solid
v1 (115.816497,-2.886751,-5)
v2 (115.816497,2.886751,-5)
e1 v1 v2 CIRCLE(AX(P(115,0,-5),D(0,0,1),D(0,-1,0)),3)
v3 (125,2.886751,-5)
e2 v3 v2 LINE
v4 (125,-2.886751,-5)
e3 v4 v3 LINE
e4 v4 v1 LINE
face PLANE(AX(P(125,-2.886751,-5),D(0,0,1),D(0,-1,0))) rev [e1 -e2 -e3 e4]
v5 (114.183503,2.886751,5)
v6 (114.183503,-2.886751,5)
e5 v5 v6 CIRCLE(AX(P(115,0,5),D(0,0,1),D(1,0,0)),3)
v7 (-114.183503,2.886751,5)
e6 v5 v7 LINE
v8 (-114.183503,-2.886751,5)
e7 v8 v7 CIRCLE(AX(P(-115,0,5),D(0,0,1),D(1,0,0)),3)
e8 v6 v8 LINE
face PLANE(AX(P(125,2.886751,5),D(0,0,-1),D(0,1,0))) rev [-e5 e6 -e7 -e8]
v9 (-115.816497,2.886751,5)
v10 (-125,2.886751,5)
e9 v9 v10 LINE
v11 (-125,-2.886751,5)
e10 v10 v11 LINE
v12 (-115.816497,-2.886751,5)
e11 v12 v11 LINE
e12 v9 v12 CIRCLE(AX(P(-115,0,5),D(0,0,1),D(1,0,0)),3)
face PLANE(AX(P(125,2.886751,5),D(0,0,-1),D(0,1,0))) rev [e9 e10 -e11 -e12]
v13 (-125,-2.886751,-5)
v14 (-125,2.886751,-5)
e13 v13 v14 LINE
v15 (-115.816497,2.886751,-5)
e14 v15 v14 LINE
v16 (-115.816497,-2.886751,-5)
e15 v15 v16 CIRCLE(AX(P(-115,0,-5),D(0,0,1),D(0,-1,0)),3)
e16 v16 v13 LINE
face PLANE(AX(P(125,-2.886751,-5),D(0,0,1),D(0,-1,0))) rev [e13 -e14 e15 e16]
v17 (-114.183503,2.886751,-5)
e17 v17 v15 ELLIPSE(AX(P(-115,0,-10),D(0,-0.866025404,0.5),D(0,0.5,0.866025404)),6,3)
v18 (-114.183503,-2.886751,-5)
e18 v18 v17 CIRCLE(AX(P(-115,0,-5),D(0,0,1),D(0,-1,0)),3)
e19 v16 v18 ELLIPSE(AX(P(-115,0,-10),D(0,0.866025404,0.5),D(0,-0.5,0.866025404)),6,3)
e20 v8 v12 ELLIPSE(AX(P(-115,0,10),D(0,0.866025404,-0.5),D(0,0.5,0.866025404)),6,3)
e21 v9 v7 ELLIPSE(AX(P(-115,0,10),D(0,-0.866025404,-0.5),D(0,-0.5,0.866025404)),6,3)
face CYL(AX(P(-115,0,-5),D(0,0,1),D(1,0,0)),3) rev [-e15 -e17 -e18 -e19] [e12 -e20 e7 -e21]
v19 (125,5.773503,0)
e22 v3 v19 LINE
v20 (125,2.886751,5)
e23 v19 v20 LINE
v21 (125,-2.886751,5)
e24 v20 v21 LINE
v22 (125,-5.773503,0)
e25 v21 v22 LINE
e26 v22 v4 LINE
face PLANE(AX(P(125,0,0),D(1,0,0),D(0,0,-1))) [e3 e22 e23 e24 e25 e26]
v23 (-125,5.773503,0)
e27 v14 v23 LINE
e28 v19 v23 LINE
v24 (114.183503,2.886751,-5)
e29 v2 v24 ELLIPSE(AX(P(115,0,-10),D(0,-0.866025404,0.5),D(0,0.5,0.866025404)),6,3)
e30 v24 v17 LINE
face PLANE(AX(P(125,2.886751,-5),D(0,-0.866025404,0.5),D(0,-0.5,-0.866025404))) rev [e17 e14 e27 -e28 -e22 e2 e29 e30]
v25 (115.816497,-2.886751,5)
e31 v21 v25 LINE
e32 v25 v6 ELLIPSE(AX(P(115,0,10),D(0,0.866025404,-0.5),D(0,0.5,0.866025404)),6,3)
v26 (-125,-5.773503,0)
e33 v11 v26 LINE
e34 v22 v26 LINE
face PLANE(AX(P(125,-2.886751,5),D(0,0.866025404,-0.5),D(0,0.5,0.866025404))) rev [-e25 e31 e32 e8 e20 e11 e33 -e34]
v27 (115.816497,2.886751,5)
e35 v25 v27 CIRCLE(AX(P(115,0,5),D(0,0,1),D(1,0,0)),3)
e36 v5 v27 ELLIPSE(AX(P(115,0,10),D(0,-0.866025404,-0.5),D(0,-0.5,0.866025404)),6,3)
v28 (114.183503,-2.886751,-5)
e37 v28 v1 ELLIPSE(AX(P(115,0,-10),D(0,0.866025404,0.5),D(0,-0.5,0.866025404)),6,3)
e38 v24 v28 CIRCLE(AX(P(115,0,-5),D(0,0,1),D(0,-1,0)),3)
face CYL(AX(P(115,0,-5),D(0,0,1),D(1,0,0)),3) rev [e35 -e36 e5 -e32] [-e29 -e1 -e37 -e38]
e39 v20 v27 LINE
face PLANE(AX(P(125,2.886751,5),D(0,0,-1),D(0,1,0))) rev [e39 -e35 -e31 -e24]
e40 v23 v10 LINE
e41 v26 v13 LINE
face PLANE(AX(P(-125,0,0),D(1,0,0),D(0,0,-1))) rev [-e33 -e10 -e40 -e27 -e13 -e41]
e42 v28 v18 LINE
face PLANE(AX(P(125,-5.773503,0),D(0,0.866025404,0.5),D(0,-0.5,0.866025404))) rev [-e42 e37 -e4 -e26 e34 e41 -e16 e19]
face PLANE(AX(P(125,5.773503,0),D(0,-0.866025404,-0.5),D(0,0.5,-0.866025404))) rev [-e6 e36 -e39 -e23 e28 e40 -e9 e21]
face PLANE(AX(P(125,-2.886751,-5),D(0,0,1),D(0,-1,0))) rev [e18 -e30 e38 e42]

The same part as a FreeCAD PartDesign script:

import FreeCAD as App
import Part
import Sketcher

V = App.Vector
Q = App.Units.Quantity

doc = App.newDocument("Part")
params = doc.addObject("Spreadsheet::Sheet", "Params")
for row, (alias, value) in enumerate([
    ("pad1_length", "250 mm"),
    ("sketch2_diameter", "6 mm"),
], start=1):
    params.set(f"A{row}", alias)
    params.set(f"B{row}", "=" + value)
    params.setAlias(f"B{row}", alias)

body = doc.addObject("PartDesign::Body", "Body")

sketch1 = body.newObject("Sketcher::SketchObject", "Sketch")
sketch1.AttachmentSupport = (doc.getObject("YZ_Plane"), [""])
sketch1.MapMode = "FlatFace"
sketch1.addGeometry([
    Part.LineSegment(V(6, 0, 0), V(3, 5, 0)),
    Part.LineSegment(V(3, 5, 0), V(-3, 5, 0)),
    Part.LineSegment(V(-3, 5, 0), V(-6, 0, 0)),
    Part.LineSegment(V(-6, 0, 0), V(-3, -5, 0)),
    Part.LineSegment(V(-3, -5, 0), V(3, -5, 0)),
    Part.LineSegment(V(3, -5, 0), V(6, 0, 0)),
], False)
sketch1.addConstraint([
    Sketcher.Constraint("Coincident", 0, 2, 1, 1),
    Sketcher.Constraint("Coincident", 1, 2, 2, 1),
    Sketcher.Constraint("Coincident", 2, 2, 3, 1),
    Sketcher.Constraint("Coincident", 3, 2, 4, 1),
    Sketcher.Constraint("Coincident", 4, 2, 5, 1),
    Sketcher.Constraint("Coincident", 5, 2, 0, 1),
    Sketcher.Constraint("Horizontal", 1),
    Sketcher.Constraint("Horizontal", 4),
    Sketcher.Constraint("Symmetric", 0, 2, 3, 2, -1, 1),
    Sketcher.Constraint("Symmetric", 2, 2, 5, 2, -1, 1),
    Sketcher.Constraint("PointOnObject", 2, 2, -1),
    Sketcher.Constraint("Parallel", 2, 5),
    Sketcher.Constraint("Vertical", 1, 2, 3, 2),
    Sketcher.Constraint("Angle", 0, Q("120 deg")),
    Sketcher.Constraint("DistanceY", -1, 1, 0, 2, Q("5 mm")),
    Sketcher.Constraint("DistanceX", 1, 2, 1, 1, Q("5.773503 mm")),
])
pad1 = body.newObject("PartDesign::Pad", "Pad")
pad1.Profile = sketch1
pad1.setExpression("Length", "Params.pad1_length")
pad1.Midplane = True

sketch2 = body.newObject("Sketcher::SketchObject", "Sketch001")
sketch2.AttachmentSupport = (doc.getObject("XY_Plane"), [""])
sketch2.MapMode = "FlatFace"
sketch2.addGeometry([
    Part.Circle(V(-115, 0, 0), V(0, 0, 1), 3),
    Part.Circle(V(115, 0, 0), V(0, 0, 1), 3),
], False)
sketch2.addConstraint([
    Sketcher.Constraint("Equal", 0, 1),
    Sketcher.Constraint("Symmetric", 0, 3, 1, 3, -1, 1),
    Sketcher.Constraint("PointOnObject", 0, 3, -1),
    Sketcher.Constraint("Diameter", 0, Q("6 mm")),
    Sketcher.Constraint("DistanceX", 0, 3, -1, 1, Q("115 mm")),
])
sketch2.setExpression("Constraints[3]", "Params.sketch2_diameter")
pocket1 = body.newObject("PartDesign::Pocket", "Pocket")
pocket1.Profile = sketch2
pocket1.Type = "ThroughAll"
pocket1.Midplane = True

doc.recompute()
